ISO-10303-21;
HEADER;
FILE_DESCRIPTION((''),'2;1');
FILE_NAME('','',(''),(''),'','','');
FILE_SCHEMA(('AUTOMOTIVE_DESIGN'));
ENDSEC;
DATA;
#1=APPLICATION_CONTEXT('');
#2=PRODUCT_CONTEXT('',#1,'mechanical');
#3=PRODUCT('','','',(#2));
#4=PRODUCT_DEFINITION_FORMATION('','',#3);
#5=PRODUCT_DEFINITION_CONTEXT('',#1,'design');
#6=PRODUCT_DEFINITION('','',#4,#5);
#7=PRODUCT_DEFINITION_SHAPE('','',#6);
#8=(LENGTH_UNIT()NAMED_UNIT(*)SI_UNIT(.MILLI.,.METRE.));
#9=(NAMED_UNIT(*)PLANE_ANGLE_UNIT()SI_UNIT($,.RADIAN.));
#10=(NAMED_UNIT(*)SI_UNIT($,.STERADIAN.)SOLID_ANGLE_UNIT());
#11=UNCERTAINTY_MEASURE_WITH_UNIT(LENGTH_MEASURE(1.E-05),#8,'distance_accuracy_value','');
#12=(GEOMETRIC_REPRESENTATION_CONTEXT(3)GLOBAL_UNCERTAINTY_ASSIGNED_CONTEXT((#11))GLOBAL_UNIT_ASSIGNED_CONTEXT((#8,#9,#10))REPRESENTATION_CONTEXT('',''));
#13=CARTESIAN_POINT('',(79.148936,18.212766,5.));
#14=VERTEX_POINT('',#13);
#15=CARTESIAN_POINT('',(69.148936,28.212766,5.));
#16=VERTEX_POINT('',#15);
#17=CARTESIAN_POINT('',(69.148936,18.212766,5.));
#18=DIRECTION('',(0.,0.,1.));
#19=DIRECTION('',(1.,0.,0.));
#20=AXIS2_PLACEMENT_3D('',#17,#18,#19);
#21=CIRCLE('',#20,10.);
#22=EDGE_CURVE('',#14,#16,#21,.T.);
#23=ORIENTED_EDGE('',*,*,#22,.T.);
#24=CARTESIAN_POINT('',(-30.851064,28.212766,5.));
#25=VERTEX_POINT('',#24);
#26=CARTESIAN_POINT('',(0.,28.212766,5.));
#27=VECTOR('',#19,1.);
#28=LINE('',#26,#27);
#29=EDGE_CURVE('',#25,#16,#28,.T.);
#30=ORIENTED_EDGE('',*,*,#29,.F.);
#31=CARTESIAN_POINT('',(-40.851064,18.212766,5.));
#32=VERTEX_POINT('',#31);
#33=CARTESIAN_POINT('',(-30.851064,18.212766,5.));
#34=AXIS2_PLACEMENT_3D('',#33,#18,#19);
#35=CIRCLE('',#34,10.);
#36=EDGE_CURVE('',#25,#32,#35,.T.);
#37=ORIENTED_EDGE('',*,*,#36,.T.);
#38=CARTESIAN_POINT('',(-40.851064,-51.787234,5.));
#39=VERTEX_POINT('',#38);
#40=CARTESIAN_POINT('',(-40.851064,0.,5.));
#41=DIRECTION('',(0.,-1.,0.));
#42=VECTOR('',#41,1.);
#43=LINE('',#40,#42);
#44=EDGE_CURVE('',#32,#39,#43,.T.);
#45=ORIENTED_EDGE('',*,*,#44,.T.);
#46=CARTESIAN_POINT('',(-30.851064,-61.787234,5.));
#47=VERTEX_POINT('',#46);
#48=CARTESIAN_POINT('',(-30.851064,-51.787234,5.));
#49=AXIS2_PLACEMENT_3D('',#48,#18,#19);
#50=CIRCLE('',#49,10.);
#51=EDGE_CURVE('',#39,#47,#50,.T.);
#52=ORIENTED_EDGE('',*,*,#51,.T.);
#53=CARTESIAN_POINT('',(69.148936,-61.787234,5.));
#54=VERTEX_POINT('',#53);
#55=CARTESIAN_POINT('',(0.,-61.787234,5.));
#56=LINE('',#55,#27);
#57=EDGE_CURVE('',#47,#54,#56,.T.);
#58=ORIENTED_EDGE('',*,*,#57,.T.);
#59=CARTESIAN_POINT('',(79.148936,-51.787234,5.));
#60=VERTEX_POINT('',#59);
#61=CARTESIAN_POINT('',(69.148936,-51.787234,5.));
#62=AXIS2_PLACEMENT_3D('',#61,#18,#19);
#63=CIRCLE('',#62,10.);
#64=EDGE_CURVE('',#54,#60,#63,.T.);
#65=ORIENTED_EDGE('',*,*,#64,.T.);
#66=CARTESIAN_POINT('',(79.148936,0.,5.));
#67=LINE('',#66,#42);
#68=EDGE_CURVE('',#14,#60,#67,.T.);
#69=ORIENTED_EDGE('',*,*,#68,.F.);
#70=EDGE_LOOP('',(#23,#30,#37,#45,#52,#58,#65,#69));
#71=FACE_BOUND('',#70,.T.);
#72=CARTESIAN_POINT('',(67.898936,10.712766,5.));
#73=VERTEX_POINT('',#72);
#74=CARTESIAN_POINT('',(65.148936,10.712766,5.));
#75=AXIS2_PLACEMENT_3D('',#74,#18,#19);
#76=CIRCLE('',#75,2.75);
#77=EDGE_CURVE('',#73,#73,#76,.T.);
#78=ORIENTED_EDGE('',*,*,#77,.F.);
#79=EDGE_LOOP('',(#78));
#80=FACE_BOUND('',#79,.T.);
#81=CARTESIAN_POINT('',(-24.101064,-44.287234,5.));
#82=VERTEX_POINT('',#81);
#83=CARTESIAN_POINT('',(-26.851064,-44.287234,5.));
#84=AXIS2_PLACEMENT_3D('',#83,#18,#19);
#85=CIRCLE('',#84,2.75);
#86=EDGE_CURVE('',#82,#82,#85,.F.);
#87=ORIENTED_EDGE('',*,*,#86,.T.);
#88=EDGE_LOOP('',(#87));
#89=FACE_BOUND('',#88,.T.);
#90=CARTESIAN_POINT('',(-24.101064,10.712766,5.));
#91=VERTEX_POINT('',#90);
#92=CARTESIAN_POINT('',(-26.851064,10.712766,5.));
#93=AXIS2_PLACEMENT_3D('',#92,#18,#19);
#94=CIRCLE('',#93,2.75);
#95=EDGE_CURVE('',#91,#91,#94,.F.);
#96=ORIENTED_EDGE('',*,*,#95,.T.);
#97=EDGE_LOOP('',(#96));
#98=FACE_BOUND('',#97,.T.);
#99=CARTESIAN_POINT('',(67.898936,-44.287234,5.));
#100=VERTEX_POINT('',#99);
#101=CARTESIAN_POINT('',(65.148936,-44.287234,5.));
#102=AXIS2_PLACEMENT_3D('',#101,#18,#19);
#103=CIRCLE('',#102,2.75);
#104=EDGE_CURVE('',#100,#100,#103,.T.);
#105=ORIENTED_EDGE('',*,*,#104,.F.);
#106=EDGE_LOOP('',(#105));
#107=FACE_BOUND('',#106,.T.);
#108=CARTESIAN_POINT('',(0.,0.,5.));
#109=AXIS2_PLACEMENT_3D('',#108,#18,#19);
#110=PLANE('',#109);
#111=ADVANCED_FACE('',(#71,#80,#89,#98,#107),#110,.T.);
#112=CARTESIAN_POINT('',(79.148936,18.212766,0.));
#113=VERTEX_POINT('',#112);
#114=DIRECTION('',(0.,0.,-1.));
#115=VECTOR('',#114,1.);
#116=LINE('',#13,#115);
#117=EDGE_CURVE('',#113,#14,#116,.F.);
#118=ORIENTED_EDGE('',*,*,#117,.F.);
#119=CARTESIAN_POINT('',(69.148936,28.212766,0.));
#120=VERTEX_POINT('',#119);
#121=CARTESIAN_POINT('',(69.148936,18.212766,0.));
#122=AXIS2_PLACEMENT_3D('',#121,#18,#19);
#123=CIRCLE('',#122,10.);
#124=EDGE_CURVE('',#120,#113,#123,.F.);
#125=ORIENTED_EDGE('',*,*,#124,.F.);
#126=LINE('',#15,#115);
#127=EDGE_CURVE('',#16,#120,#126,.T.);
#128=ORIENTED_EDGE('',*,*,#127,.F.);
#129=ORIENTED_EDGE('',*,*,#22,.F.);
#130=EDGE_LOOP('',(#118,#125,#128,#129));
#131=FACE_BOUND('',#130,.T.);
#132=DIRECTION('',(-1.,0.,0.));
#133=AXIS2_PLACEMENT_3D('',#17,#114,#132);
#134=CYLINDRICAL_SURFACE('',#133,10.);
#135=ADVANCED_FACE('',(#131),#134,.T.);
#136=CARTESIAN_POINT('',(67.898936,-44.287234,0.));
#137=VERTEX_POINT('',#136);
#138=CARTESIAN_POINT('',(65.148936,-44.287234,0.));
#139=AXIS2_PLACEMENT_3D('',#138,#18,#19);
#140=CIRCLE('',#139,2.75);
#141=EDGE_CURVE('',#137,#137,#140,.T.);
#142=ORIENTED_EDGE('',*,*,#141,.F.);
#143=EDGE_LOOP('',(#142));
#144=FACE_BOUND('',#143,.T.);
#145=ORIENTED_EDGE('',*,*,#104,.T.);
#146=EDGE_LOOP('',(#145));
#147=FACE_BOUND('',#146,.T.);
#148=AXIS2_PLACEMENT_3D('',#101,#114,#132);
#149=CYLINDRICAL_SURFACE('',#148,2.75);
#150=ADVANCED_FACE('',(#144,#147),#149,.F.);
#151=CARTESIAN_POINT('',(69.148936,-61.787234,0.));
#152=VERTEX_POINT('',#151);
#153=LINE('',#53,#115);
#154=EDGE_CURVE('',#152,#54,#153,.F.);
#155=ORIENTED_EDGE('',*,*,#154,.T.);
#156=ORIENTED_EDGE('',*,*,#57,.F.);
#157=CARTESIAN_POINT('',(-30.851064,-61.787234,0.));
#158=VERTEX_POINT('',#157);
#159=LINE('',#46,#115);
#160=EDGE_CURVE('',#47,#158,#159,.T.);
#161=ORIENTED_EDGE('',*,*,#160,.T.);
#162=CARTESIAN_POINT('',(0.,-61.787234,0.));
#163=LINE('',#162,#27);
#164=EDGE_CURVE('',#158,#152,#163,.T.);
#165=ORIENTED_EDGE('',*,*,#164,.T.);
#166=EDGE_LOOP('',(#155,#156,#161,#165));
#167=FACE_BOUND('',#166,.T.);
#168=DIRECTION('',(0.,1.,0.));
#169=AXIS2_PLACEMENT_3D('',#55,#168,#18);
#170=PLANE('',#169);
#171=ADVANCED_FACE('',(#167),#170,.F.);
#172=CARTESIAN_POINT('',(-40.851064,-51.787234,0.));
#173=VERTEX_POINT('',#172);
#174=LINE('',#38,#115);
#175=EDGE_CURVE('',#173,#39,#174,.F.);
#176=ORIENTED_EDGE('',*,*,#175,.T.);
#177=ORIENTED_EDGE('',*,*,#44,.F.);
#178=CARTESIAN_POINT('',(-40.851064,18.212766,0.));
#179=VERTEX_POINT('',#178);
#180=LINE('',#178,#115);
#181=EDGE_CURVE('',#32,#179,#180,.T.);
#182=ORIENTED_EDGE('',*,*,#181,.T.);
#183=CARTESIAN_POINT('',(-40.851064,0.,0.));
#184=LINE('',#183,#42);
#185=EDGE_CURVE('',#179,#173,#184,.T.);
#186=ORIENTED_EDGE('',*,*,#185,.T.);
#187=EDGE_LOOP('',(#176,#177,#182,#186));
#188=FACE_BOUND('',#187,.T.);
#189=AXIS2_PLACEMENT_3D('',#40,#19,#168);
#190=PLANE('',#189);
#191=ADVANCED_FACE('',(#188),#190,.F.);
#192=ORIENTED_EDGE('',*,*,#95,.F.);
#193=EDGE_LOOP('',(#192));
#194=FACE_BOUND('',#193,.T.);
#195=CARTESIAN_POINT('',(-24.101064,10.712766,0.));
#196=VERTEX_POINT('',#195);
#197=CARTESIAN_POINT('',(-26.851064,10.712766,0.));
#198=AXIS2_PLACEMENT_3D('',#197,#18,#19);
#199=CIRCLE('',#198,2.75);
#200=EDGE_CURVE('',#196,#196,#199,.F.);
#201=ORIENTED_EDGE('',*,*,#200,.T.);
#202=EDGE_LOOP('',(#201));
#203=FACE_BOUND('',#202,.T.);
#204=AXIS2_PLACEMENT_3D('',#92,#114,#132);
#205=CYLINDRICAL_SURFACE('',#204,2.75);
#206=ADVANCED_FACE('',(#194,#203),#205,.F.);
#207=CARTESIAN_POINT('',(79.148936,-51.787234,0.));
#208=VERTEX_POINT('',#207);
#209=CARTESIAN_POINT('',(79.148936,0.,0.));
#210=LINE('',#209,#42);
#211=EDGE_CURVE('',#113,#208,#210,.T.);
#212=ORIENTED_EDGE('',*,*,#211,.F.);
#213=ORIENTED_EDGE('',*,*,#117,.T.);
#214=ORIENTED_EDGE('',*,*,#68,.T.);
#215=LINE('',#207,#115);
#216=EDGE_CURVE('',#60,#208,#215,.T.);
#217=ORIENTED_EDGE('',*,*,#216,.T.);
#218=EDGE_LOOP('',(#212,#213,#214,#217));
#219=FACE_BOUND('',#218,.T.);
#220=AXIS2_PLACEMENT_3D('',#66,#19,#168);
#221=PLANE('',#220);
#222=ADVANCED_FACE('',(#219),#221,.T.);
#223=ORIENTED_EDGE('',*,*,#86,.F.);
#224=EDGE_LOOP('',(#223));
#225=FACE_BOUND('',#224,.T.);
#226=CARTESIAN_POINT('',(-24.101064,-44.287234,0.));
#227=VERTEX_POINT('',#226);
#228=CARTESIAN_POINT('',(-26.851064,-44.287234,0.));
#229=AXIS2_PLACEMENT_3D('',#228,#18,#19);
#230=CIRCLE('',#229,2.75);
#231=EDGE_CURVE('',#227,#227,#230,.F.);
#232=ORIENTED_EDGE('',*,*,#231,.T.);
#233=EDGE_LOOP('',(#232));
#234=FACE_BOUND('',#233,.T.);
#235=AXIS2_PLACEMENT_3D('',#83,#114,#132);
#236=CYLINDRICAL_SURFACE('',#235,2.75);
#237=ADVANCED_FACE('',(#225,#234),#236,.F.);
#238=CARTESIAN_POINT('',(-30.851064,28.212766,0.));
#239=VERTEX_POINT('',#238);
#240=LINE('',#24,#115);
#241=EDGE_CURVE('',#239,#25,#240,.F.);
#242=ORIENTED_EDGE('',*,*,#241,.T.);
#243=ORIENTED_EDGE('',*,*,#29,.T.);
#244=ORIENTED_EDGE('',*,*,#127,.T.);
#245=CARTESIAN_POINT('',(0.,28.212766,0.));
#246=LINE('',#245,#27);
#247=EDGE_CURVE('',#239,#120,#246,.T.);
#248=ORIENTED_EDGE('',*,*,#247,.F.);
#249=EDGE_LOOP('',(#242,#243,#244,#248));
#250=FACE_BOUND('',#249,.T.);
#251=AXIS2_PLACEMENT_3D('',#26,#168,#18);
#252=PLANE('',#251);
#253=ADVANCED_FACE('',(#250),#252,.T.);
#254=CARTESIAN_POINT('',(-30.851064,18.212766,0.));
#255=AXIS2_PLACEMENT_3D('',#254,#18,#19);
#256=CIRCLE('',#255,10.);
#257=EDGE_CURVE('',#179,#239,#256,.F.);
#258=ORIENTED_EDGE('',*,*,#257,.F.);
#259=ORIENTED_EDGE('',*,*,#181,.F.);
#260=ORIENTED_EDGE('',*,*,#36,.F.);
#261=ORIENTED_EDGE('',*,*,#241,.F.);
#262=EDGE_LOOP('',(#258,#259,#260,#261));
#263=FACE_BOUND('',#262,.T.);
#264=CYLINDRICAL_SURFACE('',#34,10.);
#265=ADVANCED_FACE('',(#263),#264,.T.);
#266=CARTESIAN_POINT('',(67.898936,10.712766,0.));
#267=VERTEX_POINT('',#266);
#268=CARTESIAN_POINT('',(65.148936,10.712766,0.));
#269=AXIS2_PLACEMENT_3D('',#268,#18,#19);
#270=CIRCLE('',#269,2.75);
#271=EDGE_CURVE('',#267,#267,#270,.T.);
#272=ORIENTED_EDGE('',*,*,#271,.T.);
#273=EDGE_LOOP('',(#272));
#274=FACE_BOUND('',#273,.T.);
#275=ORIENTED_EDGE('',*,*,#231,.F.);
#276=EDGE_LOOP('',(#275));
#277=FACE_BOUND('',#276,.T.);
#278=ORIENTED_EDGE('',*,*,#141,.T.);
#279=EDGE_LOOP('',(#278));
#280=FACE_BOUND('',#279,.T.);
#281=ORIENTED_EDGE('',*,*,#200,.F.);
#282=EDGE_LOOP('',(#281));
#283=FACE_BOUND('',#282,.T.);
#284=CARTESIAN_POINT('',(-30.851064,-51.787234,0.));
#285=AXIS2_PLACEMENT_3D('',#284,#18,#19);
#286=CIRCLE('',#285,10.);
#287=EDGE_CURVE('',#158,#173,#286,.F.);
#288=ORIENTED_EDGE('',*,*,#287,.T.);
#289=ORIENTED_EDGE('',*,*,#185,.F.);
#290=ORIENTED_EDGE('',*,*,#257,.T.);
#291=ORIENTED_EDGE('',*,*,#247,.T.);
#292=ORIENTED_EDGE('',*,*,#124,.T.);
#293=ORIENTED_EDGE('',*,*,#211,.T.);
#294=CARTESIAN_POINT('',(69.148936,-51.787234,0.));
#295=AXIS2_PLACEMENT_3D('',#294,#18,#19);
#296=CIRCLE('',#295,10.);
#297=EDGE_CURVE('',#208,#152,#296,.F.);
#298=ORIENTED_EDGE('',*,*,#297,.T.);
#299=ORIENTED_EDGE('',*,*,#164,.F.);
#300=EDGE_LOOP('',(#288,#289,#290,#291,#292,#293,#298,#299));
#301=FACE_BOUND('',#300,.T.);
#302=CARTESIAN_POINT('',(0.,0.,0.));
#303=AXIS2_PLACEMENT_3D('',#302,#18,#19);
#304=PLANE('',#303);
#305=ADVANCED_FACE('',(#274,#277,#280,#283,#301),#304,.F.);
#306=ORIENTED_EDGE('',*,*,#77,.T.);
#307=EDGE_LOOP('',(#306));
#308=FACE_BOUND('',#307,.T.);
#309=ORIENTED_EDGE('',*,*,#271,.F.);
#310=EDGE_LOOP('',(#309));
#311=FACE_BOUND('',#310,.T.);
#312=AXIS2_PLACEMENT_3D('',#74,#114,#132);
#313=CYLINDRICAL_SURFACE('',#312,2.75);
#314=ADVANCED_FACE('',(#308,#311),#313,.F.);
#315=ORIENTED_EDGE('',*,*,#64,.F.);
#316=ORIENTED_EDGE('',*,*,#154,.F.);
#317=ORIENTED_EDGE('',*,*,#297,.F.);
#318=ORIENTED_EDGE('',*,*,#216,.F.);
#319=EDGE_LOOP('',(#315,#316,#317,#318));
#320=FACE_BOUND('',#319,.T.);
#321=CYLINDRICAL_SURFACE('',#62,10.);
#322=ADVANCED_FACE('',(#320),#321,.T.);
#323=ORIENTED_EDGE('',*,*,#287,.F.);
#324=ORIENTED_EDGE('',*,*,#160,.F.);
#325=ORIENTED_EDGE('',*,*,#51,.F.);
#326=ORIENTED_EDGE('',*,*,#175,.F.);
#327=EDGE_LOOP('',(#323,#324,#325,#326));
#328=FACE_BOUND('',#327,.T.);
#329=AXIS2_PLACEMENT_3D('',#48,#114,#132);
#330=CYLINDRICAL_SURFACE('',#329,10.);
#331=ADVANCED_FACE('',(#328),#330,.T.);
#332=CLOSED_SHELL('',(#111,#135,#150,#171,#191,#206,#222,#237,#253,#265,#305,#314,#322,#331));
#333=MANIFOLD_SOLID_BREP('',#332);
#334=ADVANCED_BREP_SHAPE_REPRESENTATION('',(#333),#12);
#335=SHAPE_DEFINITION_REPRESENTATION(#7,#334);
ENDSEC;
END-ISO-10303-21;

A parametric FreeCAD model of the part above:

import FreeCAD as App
import Part
import Sketcher
Q = App.Units.Quantity


def edges_at(feature, points):
    """Names of the edges that pass closest to the given points."""
    edges = feature.Shape.Edges
    near = lambda p: min(range(len(edges)), key=lambda i: edges[i].distToShape(Part.Vertex(*p))[0])
    return sorted({f"Edge{near(p) + 1}" for p in points})

doc = App.newDocument("Part")
params = doc.addObject("Spreadsheet::Sheet", "Params")
for row, (alias, value) in enumerate([
    ("sketch1_diameter", "5.5 mm"),
    ("sketch1_width", "120 mm"),
    ("sketch1_height", "90 mm"),
    ("pad1_length", "5 mm"),
    ("fillet_radius", "10 mm"),
], start=1):
    params.set(f"A{row}", alias)
    params.set(f"B{row}", "=" + value)
    params.setAlias(f"B{row}", alias)

body = doc.addObject("PartDesign::Body", "Body")

sketch1 = body.newObject("Sketcher::SketchObject", "Sketch")
sketch1.AttachmentSupport = (doc.getObject("XY_Plane"), [""])
sketch1.MapMode = "FlatFace"
sketch1.addGeometry([
    Part.LineSegment(App.Vector(-40.9, 28.2, 0), App.Vector(-40.9, -61.8, 0)),
    Part.LineSegment(App.Vector(-40.9, -61.8, 0), App.Vector(79.1, -61.8, 0)),
    Part.LineSegment(App.Vector(79.1, -61.8, 0), App.Vector(79.1, 28.2, 0)),
    Part.LineSegment(App.Vector(79.1, 28.2, 0), App.Vector(-40.9, 28.2, 0)),
    Part.Circle(App.Vector(-26.9, -44.3, 0), App.Vector(0, 0, 1), 2.8),
    Part.Circle(App.Vector(65.1, -44.3, 0), App.Vector(0, 0, 1), 2.8),
    Part.Circle(App.Vector(-26.9, 10.7, 0), App.Vector(0, 0, 1), 2.8),
    Part.Circle(App.Vector(65.1, 10.7, 0), App.Vector(0, 0, 1), 2.8),
], False)
sketch1.addConstraint([
    Sketcher.Constraint("Coincident", 0, 2, 1, 1),
    Sketcher.Constraint("Coincident", 1, 2, 2, 1),
    Sketcher.Constraint("Coincident", 2, 2, 3, 1),
    Sketcher.Constraint("Coincident", 3, 2, 0, 1),
    Sketcher.Constraint("Vertical", 0),
    Sketcher.Constraint("Horizontal", 1),
    Sketcher.Constraint("Vertical", 2),
    Sketcher.Constraint("Horizontal", 3),
    Sketcher.Constraint("Equal", 4, 5),
    Sketcher.Constraint("Equal", 5, 6),
    Sketcher.Constraint("Equal", 6, 7),
    Sketcher.Constraint("Horizontal", 4, 3, 5, 3),
    Sketcher.Constraint("Horizontal", 6, 3, 7, 3),
    Sketcher.Constraint("Vertical", 4, 3, 6, 3),
    Sketcher.Constraint("Vertical", 5, 3, 7, 3),
    Sketcher.Constraint("Diameter", 4, Q("5.5 mm")),
    Sketcher.Constraint("DistanceX", 1, 1, 1, 2, Q("120 mm")),
    Sketcher.Constraint("DistanceY", 0, 2, 0, 1, Q("90 mm")),
    Sketcher.Constraint("DistanceX", 4, 3, 5, 3, Q("92 mm")),
    Sketcher.Constraint("DistanceY", 4, 3, 6, 3, Q("55 mm")),
    Sketcher.Constraint("DistanceX", 0, 2, 4, 3, Q("14 mm")),
    Sketcher.Constraint("DistanceY", 0, 2, 4, 3, Q("17.5 mm")),
    Sketcher.Constraint("DistanceX", 4, 3, -1, 1, Q("26.851064 mm")),
    Sketcher.Constraint("DistanceY", 4, 3, -1, 1, Q("44.287234 mm")),
])
sketch1.setExpression("Constraints[15]", "Params.sketch1_diameter")
sketch1.setExpression("Constraints[16]", "Params.sketch1_width")
sketch1.setExpression("Constraints[17]", "Params.sketch1_height")
pad1 = body.newObject("PartDesign::Pad", "Pad")
pad1.Profile = sketch1
pad1.setExpression("Length", "Params.pad1_length")
doc.recompute()

fillet = body.newObject("PartDesign::Fillet", "Fillet")
fillet.Base = (pad1, edges_at(pad1, [
    (-40.851, -61.787, 2.5),
    (-40.851, 28.213, 2.5),
    (79.149, 28.213, 2.5),
    (79.149, -61.787, 2.5),
]))
fillet.setExpression("Radius", "Params.fillet_radius")

doc.recompute()
